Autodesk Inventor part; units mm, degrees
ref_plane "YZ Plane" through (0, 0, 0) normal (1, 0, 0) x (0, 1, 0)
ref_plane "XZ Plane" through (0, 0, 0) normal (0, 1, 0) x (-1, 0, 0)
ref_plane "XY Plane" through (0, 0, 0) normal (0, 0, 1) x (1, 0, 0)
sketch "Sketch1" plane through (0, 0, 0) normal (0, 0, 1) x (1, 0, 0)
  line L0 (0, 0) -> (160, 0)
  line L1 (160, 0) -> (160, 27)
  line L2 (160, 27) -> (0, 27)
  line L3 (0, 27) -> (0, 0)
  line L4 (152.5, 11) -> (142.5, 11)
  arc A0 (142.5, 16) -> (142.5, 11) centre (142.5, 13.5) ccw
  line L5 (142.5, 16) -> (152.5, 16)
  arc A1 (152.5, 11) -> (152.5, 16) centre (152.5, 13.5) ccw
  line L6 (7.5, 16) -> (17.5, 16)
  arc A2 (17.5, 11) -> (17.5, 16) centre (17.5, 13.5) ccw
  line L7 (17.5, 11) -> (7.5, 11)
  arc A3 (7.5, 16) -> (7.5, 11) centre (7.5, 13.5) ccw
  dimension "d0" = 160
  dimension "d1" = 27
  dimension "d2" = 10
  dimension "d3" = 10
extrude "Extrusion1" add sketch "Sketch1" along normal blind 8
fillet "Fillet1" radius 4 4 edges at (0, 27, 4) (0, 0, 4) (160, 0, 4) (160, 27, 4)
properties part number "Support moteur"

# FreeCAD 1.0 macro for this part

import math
import FreeCAD as App
import Part
import Sketcher
from FreeCAD import Vector


def edges_at(feature, points):
    """Names of the edges that pass closest to the given points."""
    edges = feature.Shape.Edges
    near = lambda p: min(range(len(edges)), key=lambda i: edges[i].distToShape(Part.Vertex(*p))[0])
    return sorted({f"Edge{near(p) + 1}" for p in points})


def add_polygon(sketch, points):
    """Adds a closed chain of lines whose ends are joined by coincident constraints."""
    first, n = sketch.GeometryCount, len(points)
    for a, b in zip(points, points[1:] + points[:1]):
        sketch.addGeometry(Part.LineSegment(App.Vector(*a, 0), App.Vector(*b, 0)), False)
    for i in range(n):
        sketch.addConstraint(Sketcher.Constraint("Coincident", first + i, 2, first + (i + 1) % n, 1))

doc = App.newDocument("Part")
params = doc.addObject("Spreadsheet::Sheet", "Params")
for row, (alias, value) in enumerate([
    ("sketch1_width", "160 mm"),
    ("sketch1_width2", "10 mm"),
    ("sketch1_height", "27 mm"),
    ("sketch1_radius", "2.5 mm"),
    ("pad1_length", "8 mm"),
    ("fillet_radius", "4 mm"),
], start=1):
    params.set(f"A{row}", alias)
    params.set(f"B{row}", "=" + value)
    params.setAlias(f"B{row}", alias)

body = doc.addObject("PartDesign::Body", "Body")

# Sketch on XY plane
sketch1 = body.newObject("Sketcher::SketchObject", "Sketch")
sketch1.AttachmentSupport = (doc.getObject("XY_Plane"), [""])
sketch1.MapMode = "FlatFace"
add_polygon(sketch1, [(0, 27), (0, 0), (160, 0), (160, 27)])  # lines 0-3
sketch1.addGeometry(Part.ArcOfCircle(Part.Circle(Vector(7.5, 13.5, 0), Vector(0, 0, 1), 2.5), math.radians(90), math.radians(270)), False)  # 4
sketch1.addGeometry(Part.LineSegment(Vector(7.5, 16, 0), Vector(17.5, 16, 0)), False)  # 5
sketch1.addGeometry(Part.ArcOfCircle(Part.Circle(Vector(17.5, 13.5, 0), Vector(0, 0, 1), 2.5), math.radians(-90), math.radians(90)), False)  # 6
sketch1.addGeometry(Part.LineSegment(Vector(17.5, 11, 0), Vector(7.5, 11, 0)), False)  # 7
sketch1.addGeometry(Part.ArcOfCircle(Part.Circle(Vector(152.5, 13.5, 0), Vector(0, 0, 1), 2.5), math.radians(-90), math.radians(90)), False)  # 8
sketch1.addGeometry(Part.LineSegment(Vector(152.5, 11, 0), Vector(142.5, 11, 0)), False)  # 9
sketch1.addGeometry(Part.ArcOfCircle(Part.Circle(Vector(142.5, 13.5, 0), Vector(0, 0, 1), 2.5), math.radians(90), math.radians(270)), False)  # 10
sketch1.addGeometry(Part.LineSegment(Vector(142.5, 16, 0), Vector(152.5, 16, 0)), False)  # 11
sketch1.addConstraint([
    Sketcher.Constraint("Tangent", 4, 1, 5, 1),
    Sketcher.Constraint("Tangent", 5, 2, 6, 2),
    Sketcher.Constraint("Tangent", 6, 1, 7, 1),
    Sketcher.Constraint("Tangent", 7, 2, 4, 2),
    Sketcher.Constraint("Tangent", 8, 1, 9, 1),
    Sketcher.Constraint("Tangent", 9, 2, 10, 2),
    Sketcher.Constraint("Tangent", 10, 1, 11, 1),
    Sketcher.Constraint("Tangent", 11, 2, 8, 2),
    Sketcher.Constraint("Vertical", 0),
    Sketcher.Constraint("Horizontal", 1),
    Sketcher.Constraint("Vertical", 2),
    Sketcher.Constraint("Horizontal", 3),
    Sketcher.Constraint("Horizontal", 5),
    Sketcher.Constraint("Horizontal", 7),
    Sketcher.Constraint("Horizontal", 9),
    Sketcher.Constraint("Horizontal", 11),
    Sketcher.Constraint("Coincident", 0, 2, -1, 1),
    Sketcher.Constraint("Equal", 6, 8),
    Sketcher.Constraint("Horizontal", 6, 3, 8, 3),
    Sketcher.Constraint("Equal", 7, 9),
    Sketcher.Constraint("DistanceX", 1, 1, 1, 2, 160.0),
    Sketcher.Constraint("DistanceX", 5, 1, 5, 2, 10.0),
    Sketcher.Constraint("DistanceY", 0, 2, 0, 1, 27.0),
    Sketcher.Constraint("Radius", 4, 2.5),
    Sketcher.Constraint("DistanceY", -1, 1, 4, 1, 16.0),
    Sketcher.Constraint("DistanceX", 6, 3, 8, 3, 135.0),
    Sketcher.Constraint("DistanceX", -1, 1, 4, 3, 7.5),
])
sketch1.setExpression("Constraints[24]", "Params.sketch1_width")
sketch1.setExpression("Constraints[25]", "Params.sketch1_width2")
sketch1.setExpression("Constraints[26]", "Params.sketch1_height")
sketch1.setExpression("Constraints[27]", "Params.sketch1_radius")
pad1 = body.newObject("PartDesign::Pad", "Pad")
pad1.Profile = sketch1
pad1.setExpression("Length", "Params.pad1_length")
doc.recompute()

fillet = body.newObject("PartDesign::Fillet", "Fillet")
fillet.Base = (pad1, edges_at(pad1, [
    (0, 27, 4),
    (0, 0, 4),
    (160, 0, 4),
    (160, 27, 4),
]))
fillet.setExpression("Radius", "Params.fillet_radius")

doc.recompute()
